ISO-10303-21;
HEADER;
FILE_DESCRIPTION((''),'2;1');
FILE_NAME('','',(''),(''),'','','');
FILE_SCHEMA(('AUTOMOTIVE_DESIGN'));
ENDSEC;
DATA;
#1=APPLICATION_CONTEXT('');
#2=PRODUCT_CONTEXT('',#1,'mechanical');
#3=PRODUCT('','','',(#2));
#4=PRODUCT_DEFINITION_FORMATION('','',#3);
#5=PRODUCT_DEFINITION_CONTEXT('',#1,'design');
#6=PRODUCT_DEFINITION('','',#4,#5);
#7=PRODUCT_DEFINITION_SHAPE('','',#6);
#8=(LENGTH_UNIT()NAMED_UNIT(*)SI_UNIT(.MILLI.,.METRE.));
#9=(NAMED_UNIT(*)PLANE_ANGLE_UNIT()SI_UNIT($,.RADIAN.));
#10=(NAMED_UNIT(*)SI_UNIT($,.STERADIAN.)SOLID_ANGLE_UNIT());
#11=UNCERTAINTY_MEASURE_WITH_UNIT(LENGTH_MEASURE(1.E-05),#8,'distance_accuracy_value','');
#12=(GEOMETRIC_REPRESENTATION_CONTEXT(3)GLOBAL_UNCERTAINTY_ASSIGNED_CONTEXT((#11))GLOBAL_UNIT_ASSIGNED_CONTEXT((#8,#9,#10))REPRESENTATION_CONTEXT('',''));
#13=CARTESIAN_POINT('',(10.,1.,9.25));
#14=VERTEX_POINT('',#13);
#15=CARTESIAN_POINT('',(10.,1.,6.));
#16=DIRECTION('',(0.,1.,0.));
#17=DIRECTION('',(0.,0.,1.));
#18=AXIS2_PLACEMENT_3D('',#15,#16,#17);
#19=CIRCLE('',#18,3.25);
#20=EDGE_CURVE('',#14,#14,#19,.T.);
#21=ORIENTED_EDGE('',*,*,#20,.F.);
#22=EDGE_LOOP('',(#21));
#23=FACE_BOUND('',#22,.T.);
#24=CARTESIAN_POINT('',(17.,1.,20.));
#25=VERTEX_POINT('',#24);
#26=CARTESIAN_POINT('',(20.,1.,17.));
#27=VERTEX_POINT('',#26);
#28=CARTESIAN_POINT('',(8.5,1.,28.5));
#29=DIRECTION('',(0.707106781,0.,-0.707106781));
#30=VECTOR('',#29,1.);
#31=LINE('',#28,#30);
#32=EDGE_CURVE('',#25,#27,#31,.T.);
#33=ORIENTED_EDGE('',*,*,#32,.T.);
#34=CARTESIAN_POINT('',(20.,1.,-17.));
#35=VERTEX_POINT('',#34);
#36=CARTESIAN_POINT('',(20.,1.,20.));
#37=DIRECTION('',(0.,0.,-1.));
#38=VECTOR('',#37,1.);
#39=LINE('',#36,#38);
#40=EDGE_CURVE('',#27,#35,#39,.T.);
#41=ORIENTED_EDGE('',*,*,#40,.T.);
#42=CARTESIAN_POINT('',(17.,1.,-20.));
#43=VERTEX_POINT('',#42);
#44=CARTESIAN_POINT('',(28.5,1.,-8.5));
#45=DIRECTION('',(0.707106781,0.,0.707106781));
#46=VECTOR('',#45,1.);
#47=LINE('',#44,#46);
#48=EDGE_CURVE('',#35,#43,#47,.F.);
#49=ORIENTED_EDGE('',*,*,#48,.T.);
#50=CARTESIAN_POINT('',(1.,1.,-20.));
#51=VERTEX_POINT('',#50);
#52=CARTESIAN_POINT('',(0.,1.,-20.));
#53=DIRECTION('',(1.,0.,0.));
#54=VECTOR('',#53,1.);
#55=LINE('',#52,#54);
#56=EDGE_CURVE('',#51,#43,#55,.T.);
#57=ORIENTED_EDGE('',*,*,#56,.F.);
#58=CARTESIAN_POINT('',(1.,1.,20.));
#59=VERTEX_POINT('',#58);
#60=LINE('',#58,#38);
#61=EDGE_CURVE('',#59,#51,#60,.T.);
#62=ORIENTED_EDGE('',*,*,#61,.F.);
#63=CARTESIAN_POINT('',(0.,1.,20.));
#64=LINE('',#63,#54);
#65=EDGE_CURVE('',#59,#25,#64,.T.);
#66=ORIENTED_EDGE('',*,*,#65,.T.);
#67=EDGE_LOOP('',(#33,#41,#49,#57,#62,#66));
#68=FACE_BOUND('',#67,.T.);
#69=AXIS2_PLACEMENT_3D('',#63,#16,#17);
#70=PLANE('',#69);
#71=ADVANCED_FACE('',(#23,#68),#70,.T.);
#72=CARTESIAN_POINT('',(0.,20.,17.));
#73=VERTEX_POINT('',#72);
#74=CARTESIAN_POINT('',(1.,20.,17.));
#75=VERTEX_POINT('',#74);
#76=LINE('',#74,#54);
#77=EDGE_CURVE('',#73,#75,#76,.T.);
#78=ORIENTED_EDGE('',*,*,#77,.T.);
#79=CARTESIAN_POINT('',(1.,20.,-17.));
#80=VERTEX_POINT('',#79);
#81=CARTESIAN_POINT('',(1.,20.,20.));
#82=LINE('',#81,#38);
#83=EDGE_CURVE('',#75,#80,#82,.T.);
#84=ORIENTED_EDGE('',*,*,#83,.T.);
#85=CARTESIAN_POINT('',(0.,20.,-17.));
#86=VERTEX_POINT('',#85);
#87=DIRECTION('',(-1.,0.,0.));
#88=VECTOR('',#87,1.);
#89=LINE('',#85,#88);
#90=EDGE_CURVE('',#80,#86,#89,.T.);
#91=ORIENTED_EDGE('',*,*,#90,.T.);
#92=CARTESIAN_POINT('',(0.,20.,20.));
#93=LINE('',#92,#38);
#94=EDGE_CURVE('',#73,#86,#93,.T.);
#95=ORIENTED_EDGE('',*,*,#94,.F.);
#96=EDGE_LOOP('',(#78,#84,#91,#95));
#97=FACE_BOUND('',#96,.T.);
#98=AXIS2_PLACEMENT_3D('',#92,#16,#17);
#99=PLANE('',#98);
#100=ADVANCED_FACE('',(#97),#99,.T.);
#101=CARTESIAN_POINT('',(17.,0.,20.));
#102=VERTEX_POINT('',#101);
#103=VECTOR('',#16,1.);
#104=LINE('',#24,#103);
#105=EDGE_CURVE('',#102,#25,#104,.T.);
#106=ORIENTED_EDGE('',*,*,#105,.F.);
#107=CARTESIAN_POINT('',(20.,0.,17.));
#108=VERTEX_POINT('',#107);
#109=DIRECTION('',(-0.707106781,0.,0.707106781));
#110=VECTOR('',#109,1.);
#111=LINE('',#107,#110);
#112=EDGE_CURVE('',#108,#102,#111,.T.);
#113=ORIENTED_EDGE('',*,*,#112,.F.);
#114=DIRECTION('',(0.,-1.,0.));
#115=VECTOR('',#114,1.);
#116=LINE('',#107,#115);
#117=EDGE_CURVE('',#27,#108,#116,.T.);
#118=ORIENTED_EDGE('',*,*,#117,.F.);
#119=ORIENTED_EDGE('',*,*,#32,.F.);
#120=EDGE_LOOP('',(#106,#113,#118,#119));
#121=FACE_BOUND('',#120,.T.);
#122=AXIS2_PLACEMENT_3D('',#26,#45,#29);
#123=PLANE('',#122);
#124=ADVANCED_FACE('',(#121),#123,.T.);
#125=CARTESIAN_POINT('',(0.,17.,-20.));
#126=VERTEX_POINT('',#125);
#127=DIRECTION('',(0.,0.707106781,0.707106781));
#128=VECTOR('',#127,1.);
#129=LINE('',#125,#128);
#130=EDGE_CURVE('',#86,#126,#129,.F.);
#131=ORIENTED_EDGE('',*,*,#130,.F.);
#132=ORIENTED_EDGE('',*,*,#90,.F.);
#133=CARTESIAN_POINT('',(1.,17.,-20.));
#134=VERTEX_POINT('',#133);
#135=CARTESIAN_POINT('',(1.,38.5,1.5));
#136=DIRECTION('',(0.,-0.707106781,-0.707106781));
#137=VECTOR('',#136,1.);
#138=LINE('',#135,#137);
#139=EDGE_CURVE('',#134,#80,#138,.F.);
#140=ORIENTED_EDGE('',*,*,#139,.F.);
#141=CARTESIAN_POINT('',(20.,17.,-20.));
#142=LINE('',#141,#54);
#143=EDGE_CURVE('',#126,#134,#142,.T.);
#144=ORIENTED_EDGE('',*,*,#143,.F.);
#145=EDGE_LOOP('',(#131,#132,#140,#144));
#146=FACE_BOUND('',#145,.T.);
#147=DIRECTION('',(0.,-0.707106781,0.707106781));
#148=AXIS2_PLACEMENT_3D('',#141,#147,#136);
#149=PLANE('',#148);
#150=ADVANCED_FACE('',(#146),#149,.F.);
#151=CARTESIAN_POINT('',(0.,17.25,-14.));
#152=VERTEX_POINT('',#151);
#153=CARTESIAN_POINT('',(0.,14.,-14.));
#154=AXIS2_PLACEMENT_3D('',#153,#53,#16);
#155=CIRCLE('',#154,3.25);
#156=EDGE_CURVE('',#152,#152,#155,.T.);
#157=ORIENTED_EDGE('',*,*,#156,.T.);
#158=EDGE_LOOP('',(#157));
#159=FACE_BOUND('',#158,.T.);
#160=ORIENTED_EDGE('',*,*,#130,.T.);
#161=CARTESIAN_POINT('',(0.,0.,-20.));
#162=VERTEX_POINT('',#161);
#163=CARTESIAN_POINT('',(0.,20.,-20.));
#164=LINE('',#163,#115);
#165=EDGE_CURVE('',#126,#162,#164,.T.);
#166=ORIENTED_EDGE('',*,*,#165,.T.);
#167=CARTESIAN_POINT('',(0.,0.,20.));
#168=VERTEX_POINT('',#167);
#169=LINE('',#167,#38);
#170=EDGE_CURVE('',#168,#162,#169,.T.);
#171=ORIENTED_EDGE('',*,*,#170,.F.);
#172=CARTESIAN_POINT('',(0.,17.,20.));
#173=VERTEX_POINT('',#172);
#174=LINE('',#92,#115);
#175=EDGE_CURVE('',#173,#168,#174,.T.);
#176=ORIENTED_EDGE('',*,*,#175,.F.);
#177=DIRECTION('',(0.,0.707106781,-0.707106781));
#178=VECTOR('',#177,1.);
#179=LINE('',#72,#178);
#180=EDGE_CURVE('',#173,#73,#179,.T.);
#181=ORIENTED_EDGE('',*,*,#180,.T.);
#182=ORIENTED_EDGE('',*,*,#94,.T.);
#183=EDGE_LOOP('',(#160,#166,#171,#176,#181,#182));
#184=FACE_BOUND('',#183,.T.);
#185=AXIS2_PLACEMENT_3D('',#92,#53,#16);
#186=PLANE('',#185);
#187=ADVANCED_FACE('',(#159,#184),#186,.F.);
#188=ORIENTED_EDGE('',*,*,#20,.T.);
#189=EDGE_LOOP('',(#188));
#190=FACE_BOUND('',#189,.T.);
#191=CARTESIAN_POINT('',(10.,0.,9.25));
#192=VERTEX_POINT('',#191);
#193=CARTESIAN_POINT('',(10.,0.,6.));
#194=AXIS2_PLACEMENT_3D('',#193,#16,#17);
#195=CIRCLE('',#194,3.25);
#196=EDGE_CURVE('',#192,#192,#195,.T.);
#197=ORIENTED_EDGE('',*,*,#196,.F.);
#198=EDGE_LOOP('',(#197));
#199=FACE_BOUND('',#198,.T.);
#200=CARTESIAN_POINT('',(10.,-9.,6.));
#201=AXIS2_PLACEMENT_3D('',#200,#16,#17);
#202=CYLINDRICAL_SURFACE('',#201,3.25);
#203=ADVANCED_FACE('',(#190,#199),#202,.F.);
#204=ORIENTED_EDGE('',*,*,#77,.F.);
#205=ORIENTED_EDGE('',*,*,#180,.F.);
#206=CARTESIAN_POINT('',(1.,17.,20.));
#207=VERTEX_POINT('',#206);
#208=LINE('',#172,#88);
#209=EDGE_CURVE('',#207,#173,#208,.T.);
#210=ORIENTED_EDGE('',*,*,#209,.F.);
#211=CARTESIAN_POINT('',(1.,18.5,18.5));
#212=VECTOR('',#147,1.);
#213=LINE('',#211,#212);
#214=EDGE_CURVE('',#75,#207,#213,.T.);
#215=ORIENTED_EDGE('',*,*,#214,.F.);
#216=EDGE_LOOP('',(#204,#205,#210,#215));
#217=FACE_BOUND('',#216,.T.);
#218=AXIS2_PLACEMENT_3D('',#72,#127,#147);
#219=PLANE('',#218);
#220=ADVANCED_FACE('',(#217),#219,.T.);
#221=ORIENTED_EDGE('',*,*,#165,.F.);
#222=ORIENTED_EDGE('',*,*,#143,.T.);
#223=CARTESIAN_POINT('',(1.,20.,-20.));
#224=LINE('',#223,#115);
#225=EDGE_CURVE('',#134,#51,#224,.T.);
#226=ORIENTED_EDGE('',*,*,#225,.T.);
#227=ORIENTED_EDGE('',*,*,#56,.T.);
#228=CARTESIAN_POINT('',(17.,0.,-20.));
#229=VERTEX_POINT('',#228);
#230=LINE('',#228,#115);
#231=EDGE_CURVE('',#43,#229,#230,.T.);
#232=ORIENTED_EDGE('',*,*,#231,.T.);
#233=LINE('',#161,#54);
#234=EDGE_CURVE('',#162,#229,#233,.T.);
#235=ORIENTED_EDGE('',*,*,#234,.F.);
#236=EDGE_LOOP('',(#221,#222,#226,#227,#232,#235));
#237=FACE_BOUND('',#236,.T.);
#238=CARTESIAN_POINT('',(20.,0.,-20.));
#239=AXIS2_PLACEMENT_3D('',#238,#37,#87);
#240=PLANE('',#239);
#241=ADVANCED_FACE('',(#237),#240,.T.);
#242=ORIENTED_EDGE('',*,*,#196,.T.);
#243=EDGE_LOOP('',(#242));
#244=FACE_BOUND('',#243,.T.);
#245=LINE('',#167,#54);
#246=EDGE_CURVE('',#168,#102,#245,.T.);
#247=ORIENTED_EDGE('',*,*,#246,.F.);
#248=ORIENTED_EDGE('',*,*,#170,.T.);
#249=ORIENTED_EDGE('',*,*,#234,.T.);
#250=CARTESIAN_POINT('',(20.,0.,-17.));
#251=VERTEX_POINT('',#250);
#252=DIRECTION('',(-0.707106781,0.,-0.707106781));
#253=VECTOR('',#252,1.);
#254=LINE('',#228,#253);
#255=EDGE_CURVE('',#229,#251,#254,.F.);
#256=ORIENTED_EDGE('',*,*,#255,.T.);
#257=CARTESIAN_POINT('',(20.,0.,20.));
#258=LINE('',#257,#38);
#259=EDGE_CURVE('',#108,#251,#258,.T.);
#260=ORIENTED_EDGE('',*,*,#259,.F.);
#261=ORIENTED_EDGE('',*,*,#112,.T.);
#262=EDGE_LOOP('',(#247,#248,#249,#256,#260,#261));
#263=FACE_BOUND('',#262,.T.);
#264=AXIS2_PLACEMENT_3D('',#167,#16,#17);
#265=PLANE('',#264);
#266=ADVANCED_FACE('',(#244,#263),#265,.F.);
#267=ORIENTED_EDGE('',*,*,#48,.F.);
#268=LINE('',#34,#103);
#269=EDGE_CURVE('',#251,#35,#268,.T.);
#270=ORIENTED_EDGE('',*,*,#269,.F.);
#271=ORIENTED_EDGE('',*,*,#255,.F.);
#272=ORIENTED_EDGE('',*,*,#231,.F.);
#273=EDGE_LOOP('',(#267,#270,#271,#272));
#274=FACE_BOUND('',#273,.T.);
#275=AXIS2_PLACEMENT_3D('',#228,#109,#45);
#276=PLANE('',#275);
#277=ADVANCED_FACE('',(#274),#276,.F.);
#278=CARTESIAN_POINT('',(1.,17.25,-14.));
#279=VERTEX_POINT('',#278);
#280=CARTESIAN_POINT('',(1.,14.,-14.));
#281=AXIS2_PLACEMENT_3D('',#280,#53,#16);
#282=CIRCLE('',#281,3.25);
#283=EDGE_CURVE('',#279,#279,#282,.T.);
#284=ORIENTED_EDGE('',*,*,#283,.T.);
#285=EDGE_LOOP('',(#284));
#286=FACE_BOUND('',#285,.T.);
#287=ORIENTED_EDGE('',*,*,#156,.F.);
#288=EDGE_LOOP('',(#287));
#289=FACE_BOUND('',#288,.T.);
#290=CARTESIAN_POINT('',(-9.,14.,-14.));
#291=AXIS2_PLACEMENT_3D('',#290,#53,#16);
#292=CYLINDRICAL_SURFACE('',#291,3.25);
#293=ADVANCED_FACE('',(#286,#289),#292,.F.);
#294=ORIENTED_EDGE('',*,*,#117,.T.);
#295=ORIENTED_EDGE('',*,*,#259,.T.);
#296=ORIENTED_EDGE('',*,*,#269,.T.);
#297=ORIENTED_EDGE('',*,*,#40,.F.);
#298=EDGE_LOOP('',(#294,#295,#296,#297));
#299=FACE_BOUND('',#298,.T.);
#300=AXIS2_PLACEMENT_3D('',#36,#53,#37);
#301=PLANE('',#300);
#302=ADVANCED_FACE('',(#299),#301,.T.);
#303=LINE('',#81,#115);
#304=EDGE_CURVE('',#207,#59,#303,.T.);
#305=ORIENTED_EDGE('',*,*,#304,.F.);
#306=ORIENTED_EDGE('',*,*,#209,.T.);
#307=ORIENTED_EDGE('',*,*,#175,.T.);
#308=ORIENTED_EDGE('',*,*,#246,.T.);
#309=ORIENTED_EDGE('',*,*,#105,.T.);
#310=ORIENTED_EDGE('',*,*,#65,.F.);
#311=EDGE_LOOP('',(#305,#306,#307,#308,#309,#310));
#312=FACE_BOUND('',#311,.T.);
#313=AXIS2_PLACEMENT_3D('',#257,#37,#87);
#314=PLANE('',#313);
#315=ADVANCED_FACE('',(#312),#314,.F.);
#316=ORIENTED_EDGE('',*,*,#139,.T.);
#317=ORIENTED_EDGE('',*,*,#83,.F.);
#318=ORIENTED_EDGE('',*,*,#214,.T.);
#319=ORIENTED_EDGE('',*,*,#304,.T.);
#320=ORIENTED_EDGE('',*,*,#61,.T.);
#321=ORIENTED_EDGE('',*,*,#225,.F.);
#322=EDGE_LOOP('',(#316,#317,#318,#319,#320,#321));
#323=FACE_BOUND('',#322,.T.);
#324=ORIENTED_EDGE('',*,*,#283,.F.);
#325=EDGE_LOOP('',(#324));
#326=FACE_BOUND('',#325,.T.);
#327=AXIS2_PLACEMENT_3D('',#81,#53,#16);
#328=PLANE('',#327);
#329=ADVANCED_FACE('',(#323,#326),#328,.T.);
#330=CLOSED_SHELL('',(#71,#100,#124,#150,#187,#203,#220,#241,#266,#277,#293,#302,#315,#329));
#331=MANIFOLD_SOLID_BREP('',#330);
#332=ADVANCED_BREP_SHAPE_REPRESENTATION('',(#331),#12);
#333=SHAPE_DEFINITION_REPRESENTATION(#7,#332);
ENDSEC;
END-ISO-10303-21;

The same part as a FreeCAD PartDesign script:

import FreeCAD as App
import Part
import Sketcher

V = App.Vector
Q = App.Units.Quantity


def edges_at(feature, points):
    """Names of the edges that pass closest to the given points."""
    edges = feature.Shape.Edges
    near = lambda p: min(range(len(edges)), key=lambda i: edges[i].distToShape(Part.Vertex(*p))[0])
    return sorted({f"Edge{near(p) + 1}" for p in points})

doc = App.newDocument("Part")
params = doc.addObject("Spreadsheet::Sheet", "Params")
for row, (alias, value) in enumerate([
    ("sketch1_width", "20 mm"),
    ("sketch1_width2", "19 mm"),
    ("pad1_length", "40 mm"),
    ("chamfer_size", "3 mm"),
    ("sketch2_diameter", "6.5 mm"),
    ("pocket1_length", "10 mm"),
    ("sketch3_diameter", "6.5 mm"),
    ("pocket2_length", "10 mm"),
], start=1):
    params.set(f"A{row}", alias)
    params.set(f"B{row}", "=" + value)
    params.setAlias(f"B{row}", alias)

body = doc.addObject("PartDesign::Body", "Body")

# Sketch on XY plane
sketch1 = body.newObject("Sketcher::SketchObject", "Sketch")
sketch1.AttachmentSupport = (doc.getObject("XY_Plane"), [""])
sketch1.MapMode = "FlatFace"
sketch1.addGeometry([
    Part.LineSegment(V(0, 20, 0), V(0, 0, 0)),  # 0
    Part.LineSegment(V(0, 0, 0), V(20, 0, 0)),  # 1
    Part.LineSegment(V(20, 0, 0), V(20, 1, 0)),  # 2
    Part.LineSegment(V(20, 1, 0), V(1, 1, 0)),  # 3
    Part.LineSegment(V(1, 1, 0), V(1, 20, 0)),  # 4
    Part.LineSegment(V(1, 20, 0), V(0, 20, 0)),  # 5
], False)
sketch1.addConstraint([
    Sketcher.Constraint("Coincident", 0, 2, 1, 1),
    Sketcher.Constraint("Coincident", 1, 2, 2, 1),
    Sketcher.Constraint("Coincident", 2, 2, 3, 1),
    Sketcher.Constraint("Coincident", 3, 2, 4, 1),
    Sketcher.Constraint("Coincident", 4, 2, 5, 1),
    Sketcher.Constraint("Coincident", 5, 2, 0, 1),
    Sketcher.Constraint("Vertical", 0),
    Sketcher.Constraint("Horizontal", 1),
    Sketcher.Constraint("Vertical", 2),
    Sketcher.Constraint("Horizontal", 3),
    Sketcher.Constraint("Vertical", 4),
    Sketcher.Constraint("Horizontal", 5),
    Sketcher.Constraint("Coincident", 0, 2, -1, 1),
    Sketcher.Constraint("Equal", 1, 0),
    Sketcher.Constraint("Equal", 5, 2),
    Sketcher.Constraint("DistanceX", 1, 1, 1, 2, Q("20 mm")),
    Sketcher.Constraint("DistanceX", 3, 2, 3, 1, Q("19 mm")),
])
sketch1.setExpression("Constraints[15]", "Params.sketch1_width")
sketch1.setExpression("Constraints[16]", "Params.sketch1_width2")
pad1 = body.newObject("PartDesign::Pad", "Pad")
pad1.Profile = sketch1
pad1.setExpression("Length", "Params.pad1_length")
pad1.Midplane = True
doc.recompute()

chamfer = body.newObject("PartDesign::Chamfer", "Chamfer")
chamfer.Base = (pad1, edges_at(pad1, [
    (0.5, 20, 20),
    (0.5, 20, -20),
    (20, 0.5, -20),
    (20, 0.5, 20),
]))
chamfer.setExpression("Size", "Params.chamfer_size")

# Sketch on XZ plane
sketch2 = body.newObject("Sketcher::SketchObject", "Sketch001")
sketch2.AttachmentSupport = (doc.getObject("XZ_Plane"), [""])
sketch2.MapMode = "FlatFace"
sketch2.AttachmentOffset = App.Placement(V(0, 0, -1), App.Rotation())
sketch2.addGeometry(Part.Circle(V(10, 6, 0), V(0, 0, 1), 3.2), False)
sketch2.addConstraint([
    Sketcher.Constraint("Diameter", 0, Q("6.5 mm")),
    Sketcher.Constraint("DistanceX", -1, 1, 0, 3, Q("10 mm")),
    Sketcher.Constraint("DistanceY", -1, 1, 0, 3, Q("6 mm")),
])
sketch2.setExpression("Constraints[0]", "Params.sketch2_diameter")
pocket1 = body.newObject("PartDesign::Pocket", "Pocket")
pocket1.Profile = sketch2
pocket1.setExpression("Length", "Params.pocket1_length")
pocket1.Reversed = True

# Sketch on YZ plane
sketch3 = body.newObject("Sketcher::SketchObject", "Sketch002")
sketch3.AttachmentSupport = (doc.getObject("YZ_Plane"), [""])
sketch3.MapMode = "FlatFace"
sketch3.AttachmentOffset = App.Placement(V(0, 0, 1), App.Rotation())
sketch3.addGeometry(Part.Circle(V(14, -14, 0), V(0, 0, 1), 3.2), False)
sketch3.addConstraint([
    Sketcher.Constraint("Diameter", 0, Q("6.5 mm")),
    Sketcher.Constraint("DistanceX", -1, 1, 0, 3, Q("14 mm")),
    Sketcher.Constraint("DistanceY", 0, 3, -1, 1, Q("14 mm")),
])
sketch3.setExpression("Constraints[0]", "Params.sketch3_diameter")
pocket2 = body.newObject("PartDesign::Pocket", "Pocket001")
pocket2.Profile = sketch3
pocket2.setExpression("Length", "Params.pocket2_length")

doc.recompute()
